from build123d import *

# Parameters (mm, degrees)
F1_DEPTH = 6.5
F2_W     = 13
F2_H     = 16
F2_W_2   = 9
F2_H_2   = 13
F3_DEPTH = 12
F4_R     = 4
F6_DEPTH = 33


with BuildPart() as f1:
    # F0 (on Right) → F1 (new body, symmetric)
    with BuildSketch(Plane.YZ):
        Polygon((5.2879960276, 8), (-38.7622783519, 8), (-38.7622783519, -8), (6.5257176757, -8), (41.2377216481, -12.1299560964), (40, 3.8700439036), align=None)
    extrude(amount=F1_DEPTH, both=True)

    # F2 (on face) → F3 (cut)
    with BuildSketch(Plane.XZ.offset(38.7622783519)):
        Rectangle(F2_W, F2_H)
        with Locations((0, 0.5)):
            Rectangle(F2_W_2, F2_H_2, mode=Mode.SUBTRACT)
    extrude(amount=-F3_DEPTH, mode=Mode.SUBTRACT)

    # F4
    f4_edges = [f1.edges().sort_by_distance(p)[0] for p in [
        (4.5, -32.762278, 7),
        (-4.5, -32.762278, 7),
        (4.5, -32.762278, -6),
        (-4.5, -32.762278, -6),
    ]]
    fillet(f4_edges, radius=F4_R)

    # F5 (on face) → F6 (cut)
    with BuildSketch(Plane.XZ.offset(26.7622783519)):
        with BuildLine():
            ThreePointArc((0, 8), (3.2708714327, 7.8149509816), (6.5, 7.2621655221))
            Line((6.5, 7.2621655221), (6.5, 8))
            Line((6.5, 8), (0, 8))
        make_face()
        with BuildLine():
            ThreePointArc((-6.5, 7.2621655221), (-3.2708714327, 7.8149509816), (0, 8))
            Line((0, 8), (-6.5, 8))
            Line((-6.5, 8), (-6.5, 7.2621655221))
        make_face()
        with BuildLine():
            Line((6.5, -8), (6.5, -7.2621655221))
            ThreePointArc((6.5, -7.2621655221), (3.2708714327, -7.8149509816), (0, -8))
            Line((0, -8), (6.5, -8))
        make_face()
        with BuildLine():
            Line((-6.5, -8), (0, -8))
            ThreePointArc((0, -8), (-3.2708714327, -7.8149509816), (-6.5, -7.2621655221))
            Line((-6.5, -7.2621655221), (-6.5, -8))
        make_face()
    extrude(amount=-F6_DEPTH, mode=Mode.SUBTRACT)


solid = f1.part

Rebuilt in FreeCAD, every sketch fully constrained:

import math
import FreeCAD as App
import Part
import Sketcher

V = App.Vector
Q = App.Units.Quantity


def edges_at(feature, points):
    """Names of the edges that pass closest to the given points."""
    edges = feature.Shape.Edges
    near = lambda p: min(range(len(edges)), key=lambda i: edges[i].distToShape(Part.Vertex(*p))[0])
    return sorted({f"Edge{near(p) + 1}" for p in points})

doc = App.newDocument("Part")
body = doc.addObject("PartDesign::Body", "Body")

# Sketch on YZ plane
sketch1 = doc.addObject("Sketcher::SketchObject", "Sketch")
body.addObject(sketch1)
sketch1.AttachmentSupport = (doc.YZ_Plane, [""])
sketch1.MapMode = "FlatFace"
sketch1.addGeometry([
    Part.LineSegment(V(5, 8, 0), V(-39, 8, 0)),  # 0
    Part.LineSegment(V(-39, 8, 0), V(-39, -8, 0)),  # 1
    Part.LineSegment(V(-39, -8, 0), V(7, -8, 0)),  # 2
    Part.LineSegment(V(7, -8, 0), V(41, -12, 0)),  # 3
    Part.LineSegment(V(41, -12, 0), V(40, 4, 0)),  # 4
    Part.LineSegment(V(40, 4, 0), V(5, 8, 0)),  # 5
], False)
sketch1.addConstraint([
    Sketcher.Constraint("Coincident", 0, 2, 1, 1),
    Sketcher.Constraint("Coincident", 1, 2, 2, 1),
    Sketcher.Constraint("Coincident", 2, 2, 3, 1),
    Sketcher.Constraint("Coincident", 3, 2, 4, 1),
    Sketcher.Constraint("Coincident", 4, 2, 5, 1),
    Sketcher.Constraint("Coincident", 5, 2, 0, 1),
    Sketcher.Constraint("Horizontal", 0),
    Sketcher.Constraint("Vertical", 1),
    Sketcher.Constraint("Horizontal", 2),
    Sketcher.Constraint("Parallel", 3, 5),
    Sketcher.Constraint("Equal", 3, 5),
    Sketcher.Constraint("DistanceY", 1, 2, 1, 1, Q("16 mm")),
    Sketcher.Constraint("DistanceY", -1, 1, 0, 2, Q("8 mm")),
    Sketcher.Constraint("DistanceX", -1, 1, 4, 2, Q("40 mm")),
    Sketcher.Constraint("DistanceX", 1, 2, 3, 2, Q("80 mm")),
    Sketcher.Constraint("DistanceX", 0, 2, 0, 1, Q("44.050274 mm")),
    Sketcher.Constraint("DistanceX", 2, 1, 2, 2, Q("45.287996 mm")),
    Sketcher.Constraint("Distance", 3, Q("34.956827 mm")),
])
pad1 = doc.addObject("PartDesign::Pad", "Pad")
body.addObject(pad1)
pad1.Profile = sketch1
pad1.Length = 13
pad1.Midplane = True

# Sketch on XZ plane
sketch2 = doc.addObject("Sketcher::SketchObject", "Sketch001")
body.addObject(sketch2)
sketch2.AttachmentSupport = (doc.XZ_Plane, [""])
sketch2.MapMode = "FlatFace"
sketch2.AttachmentOffset = App.Placement(V(0, 0, 38.762278), App.Rotation())
sketch2.addGeometry([
    Part.LineSegment(V(-6, 8, 0), V(-6, -8, 0)),  # 0
    Part.LineSegment(V(-6, -8, 0), V(6, -8, 0)),  # 1
    Part.LineSegment(V(6, -8, 0), V(6, 8, 0)),  # 2
    Part.LineSegment(V(6, 8, 0), V(-6, 8, 0)),  # 3
    Part.LineSegment(V(4, -6, 0), V(-4, -6, 0)),  # 4
    Part.LineSegment(V(-4, -6, 0), V(-4, 7, 0)),  # 5
    Part.LineSegment(V(-4, 7, 0), V(4, 7, 0)),  # 6
    Part.LineSegment(V(4, 7, 0), V(4, -6, 0)),  # 7
], False)
sketch2.addConstraint([
    Sketcher.Constraint("Coincident", 0, 2, 1, 1),
    Sketcher.Constraint("Coincident", 1, 2, 2, 1),
    Sketcher.Constraint("Coincident", 2, 2, 3, 1),
    Sketcher.Constraint("Coincident", 3, 2, 0, 1),
    Sketcher.Constraint("Coincident", 4, 2, 5, 1),
    Sketcher.Constraint("Coincident", 5, 2, 6, 1),
    Sketcher.Constraint("Coincident", 6, 2, 7, 1),
    Sketcher.Constraint("Coincident", 7, 2, 4, 1),
    Sketcher.Constraint("Vertical", 0),
    Sketcher.Constraint("Horizontal", 1),
    Sketcher.Constraint("Vertical", 2),
    Sketcher.Constraint("Horizontal", 3),
    Sketcher.Constraint("Horizontal", 4),
    Sketcher.Constraint("Vertical", 5),
    Sketcher.Constraint("Horizontal", 6),
    Sketcher.Constraint("Vertical", 7),
    Sketcher.Constraint("Symmetric", 0, 2, 2, 2, -1, 1),
    Sketcher.Constraint("Equal", 3, 5),
    Sketcher.Constraint("DistanceX", 1, 1, 1, 2, Q("13 mm")),
    Sketcher.Constraint("DistanceX", 4, 2, 4, 1, Q("9 mm")),
    Sketcher.Constraint("DistanceY", 0, 2, 0, 1, Q("16 mm")),
    Sketcher.Constraint("DistanceY", 4, 2, -1, 1, Q("6 mm")),
    Sketcher.Constraint("DistanceX", 0, 2, 4, 2, Q("2 mm")),
])
pocket1 = doc.addObject("PartDesign::Pocket", "Pocket")
body.addObject(pocket1)
pocket1.Profile = sketch2
pocket1.Length = 12
doc.recompute()

fillet = doc.addObject("PartDesign::Fillet", "Fillet")
body.addObject(fillet)
fillet.Base = (pocket1, edges_at(pocket1, [
    (4.5, -32.762, 7),
    (-4.5, -32.762, 7),
    (4.5, -32.762, -6),
    (-4.5, -32.762, -6),
]))
fillet.Radius = 4

# Sketch on XZ plane
sketch3 = doc.addObject("Sketcher::SketchObject", "Sketch002")
body.addObject(sketch3)
sketch3.AttachmentSupport = (doc.XZ_Plane, [""])
sketch3.MapMode = "FlatFace"
sketch3.AttachmentOffset = App.Placement(V(0, 0, 26.762278), App.Rotation())
sketch3.addGeometry([
    Part.ArcOfCircle(Part.Circle(V(0, -21, 0), V(0, 0, 1), 29), math.radians(77.05), math.radians(90)),  # 0
    Part.LineSegment(V(6.5, 7.3, 0), V(6.5, 8, 0)),  # 1
    Part.LineSegment(V(6.5, 8, 0), V(0, 8, 0)),  # 2
    Part.ArcOfCircle(Part.Circle(V(0, -21, 0), V(0, 0, 1), 29), math.radians(90), math.radians(102.95)),  # 3
    Part.LineSegment(V(0, 8, 0), V(-6.5, 8, 0)),  # 4
    Part.LineSegment(V(-6.5, 8, 0), V(-6.5, 7.3, 0)),  # 5
    Part.LineSegment(V(6.5, -8, 0), V(6.5, -7.3, 0)),  # 6
    Part.ArcOfCircle(Part.Circle(V(0, 21, 0), V(0, 0, 1), 29), math.radians(-90), math.radians(-77.05)),  # 7
    Part.LineSegment(V(0, -8, 0), V(6.5, -8, 0)),  # 8
    Part.LineSegment(V(-6.5, -8, 0), V(0, -8, 0)),  # 9
    Part.ArcOfCircle(Part.Circle(V(0, 21, 0), V(0, 0, 1), 29), math.radians(-102.95), math.radians(-90)),  # 10
    Part.LineSegment(V(-6.5, -7.3, 0), V(-6.5, -8, 0)),  # 11
], False)
sketch3.addConstraint([
    Sketcher.Constraint("Coincident", 0, 1, 1, 1),
    Sketcher.Constraint("Coincident", 1, 2, 2, 1),
    Sketcher.Constraint("Tangent", 2, 2, 0, 2),
    Sketcher.Constraint("Tangent", 3, 1, 4, 1),
    Sketcher.Constraint("Coincident", 4, 2, 5, 1),
    Sketcher.Constraint("Coincident", 5, 2, 3, 2),
    Sketcher.Constraint("Coincident", 6, 2, 7, 2),
    Sketcher.Constraint("Tangent", 7, 1, 8, 1),
    Sketcher.Constraint("Coincident", 8, 2, 6, 1),
    Sketcher.Constraint("Tangent", 9, 2, 10, 2),
    Sketcher.Constraint("Coincident", 10, 1, 11, 1),
    Sketcher.Constraint("Coincident", 11, 2, 9, 1),
    Sketcher.Constraint("Vertical", 1),
    Sketcher.Constraint("Horizontal", 2),
    Sketcher.Constraint("Horizontal", 4),
    Sketcher.Constraint("Vertical", 5),
    Sketcher.Constraint("Vertical", 6),
    Sketcher.Constraint("Horizontal", 8),
    Sketcher.Constraint("Horizontal", 9),
    Sketcher.Constraint("Vertical", 11),
    Sketcher.Constraint("Coincident", 3, 3, 0, 3),
    Sketcher.Constraint("Coincident", 10, 3, 7, 3),
    Sketcher.Constraint("Equal", 0, 3),
    Sketcher.Constraint("Equal", 3, 7),
    Sketcher.Constraint("Equal", 7, 10),
    Sketcher.Constraint("Symmetric", 0, 3, 7, 3, -1, 1),
    Sketcher.Constraint("Symmetric", 0, 1, 5, 2, -2),
    Sketcher.Constraint("Horizontal", 6, 2, 10, 1),
    Sketcher.Constraint("Vertical", 1, 2, 6, 2),
    Sketcher.Constraint("Radius", 0, Q("29 mm")),
    Sketcher.Constraint("DistanceX", 2, 2, 2, 1, Q("6.5 mm")),
    Sketcher.Constraint("DistanceY", 0, 3, -1, 1, Q("21 mm")),
])
pocket2 = doc.addObject("PartDesign::Pocket", "Pocket001")
body.addObject(pocket2)
pocket2.Profile = sketch3
pocket2.Length = 33

doc.recompute()
